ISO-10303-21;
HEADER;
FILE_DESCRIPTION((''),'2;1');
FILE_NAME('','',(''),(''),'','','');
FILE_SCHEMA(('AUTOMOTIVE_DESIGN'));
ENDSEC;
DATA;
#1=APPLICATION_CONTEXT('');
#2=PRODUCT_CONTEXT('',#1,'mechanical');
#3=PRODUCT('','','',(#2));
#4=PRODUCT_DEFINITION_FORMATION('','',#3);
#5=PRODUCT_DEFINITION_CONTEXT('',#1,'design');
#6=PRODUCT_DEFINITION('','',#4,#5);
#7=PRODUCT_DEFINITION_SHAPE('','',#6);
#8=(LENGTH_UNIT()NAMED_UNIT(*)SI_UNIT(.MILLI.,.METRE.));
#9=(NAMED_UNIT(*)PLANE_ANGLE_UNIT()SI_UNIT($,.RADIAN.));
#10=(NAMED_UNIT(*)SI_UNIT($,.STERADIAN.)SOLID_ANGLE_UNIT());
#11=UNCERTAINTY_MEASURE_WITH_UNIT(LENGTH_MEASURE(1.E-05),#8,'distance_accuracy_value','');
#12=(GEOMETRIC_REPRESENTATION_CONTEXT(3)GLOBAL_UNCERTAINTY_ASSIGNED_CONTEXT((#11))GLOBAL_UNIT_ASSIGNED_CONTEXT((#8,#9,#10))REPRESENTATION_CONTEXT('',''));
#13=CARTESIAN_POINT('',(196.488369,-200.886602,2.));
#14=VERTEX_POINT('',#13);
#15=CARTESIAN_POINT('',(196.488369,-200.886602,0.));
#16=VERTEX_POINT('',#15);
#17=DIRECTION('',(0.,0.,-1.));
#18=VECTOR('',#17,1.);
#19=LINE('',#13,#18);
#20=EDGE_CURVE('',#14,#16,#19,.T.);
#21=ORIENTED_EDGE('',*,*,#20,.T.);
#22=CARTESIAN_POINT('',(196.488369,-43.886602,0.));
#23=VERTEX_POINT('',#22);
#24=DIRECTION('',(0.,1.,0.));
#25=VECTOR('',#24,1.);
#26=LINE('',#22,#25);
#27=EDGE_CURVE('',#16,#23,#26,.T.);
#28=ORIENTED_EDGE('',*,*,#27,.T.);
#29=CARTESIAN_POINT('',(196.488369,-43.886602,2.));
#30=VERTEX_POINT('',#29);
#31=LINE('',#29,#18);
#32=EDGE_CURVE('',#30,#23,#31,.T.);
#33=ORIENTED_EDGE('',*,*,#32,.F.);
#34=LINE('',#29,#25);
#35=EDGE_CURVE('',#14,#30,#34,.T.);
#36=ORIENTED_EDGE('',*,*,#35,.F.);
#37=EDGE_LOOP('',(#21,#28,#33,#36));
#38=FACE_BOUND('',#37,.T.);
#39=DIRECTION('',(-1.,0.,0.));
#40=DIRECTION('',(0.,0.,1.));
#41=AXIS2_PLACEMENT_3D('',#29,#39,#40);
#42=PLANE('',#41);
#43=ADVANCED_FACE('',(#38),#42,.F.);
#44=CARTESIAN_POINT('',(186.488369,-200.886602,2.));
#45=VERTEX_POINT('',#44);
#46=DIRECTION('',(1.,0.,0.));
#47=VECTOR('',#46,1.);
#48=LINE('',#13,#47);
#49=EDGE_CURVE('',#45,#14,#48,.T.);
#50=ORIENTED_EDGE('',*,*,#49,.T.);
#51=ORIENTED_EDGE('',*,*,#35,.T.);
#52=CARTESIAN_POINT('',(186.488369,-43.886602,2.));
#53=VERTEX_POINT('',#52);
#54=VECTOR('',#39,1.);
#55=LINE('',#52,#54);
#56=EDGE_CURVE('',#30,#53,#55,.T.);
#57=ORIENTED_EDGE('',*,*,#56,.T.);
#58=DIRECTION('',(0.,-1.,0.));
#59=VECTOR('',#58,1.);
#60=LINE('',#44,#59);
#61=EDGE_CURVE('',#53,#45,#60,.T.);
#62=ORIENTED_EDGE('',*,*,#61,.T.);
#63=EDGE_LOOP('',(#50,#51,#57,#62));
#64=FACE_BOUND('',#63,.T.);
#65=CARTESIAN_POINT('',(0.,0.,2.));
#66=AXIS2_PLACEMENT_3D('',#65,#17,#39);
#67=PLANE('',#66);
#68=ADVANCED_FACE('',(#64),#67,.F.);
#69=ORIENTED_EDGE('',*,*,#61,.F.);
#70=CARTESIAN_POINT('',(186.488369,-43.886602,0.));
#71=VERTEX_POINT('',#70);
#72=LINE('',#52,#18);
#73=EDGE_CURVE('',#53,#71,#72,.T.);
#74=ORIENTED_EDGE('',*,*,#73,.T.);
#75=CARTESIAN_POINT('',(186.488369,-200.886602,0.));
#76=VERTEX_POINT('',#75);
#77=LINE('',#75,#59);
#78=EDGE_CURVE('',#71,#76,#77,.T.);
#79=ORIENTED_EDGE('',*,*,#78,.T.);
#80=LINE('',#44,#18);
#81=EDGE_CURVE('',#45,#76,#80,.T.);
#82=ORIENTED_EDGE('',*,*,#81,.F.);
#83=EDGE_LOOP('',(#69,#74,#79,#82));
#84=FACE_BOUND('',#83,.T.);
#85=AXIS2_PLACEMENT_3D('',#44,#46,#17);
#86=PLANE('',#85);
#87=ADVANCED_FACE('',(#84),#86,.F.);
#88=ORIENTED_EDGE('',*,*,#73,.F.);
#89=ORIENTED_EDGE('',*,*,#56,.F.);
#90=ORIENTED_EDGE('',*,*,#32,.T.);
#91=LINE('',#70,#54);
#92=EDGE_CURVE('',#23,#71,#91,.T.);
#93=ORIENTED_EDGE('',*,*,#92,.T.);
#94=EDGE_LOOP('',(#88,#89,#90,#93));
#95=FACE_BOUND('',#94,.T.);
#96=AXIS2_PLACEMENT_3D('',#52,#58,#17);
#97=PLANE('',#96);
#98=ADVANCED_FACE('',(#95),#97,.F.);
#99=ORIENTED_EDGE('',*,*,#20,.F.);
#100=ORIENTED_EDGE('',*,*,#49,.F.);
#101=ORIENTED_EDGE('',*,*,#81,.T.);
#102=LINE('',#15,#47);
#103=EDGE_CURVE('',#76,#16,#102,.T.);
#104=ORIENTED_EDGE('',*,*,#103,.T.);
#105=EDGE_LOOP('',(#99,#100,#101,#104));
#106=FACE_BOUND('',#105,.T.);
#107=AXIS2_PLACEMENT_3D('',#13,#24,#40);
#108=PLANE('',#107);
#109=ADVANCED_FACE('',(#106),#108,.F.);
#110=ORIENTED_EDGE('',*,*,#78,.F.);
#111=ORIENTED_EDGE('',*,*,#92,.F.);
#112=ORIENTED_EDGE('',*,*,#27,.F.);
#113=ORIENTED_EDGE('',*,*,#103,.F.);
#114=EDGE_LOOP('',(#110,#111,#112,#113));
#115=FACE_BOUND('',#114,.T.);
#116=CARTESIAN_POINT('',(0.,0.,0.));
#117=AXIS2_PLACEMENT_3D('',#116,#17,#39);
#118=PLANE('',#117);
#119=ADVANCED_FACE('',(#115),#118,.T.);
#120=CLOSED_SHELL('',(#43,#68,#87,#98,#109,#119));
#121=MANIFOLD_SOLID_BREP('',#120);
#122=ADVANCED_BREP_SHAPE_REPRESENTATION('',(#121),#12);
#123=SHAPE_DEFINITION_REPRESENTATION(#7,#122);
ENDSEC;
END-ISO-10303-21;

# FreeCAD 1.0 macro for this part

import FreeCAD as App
import Part
import Sketcher
from FreeCAD import Vector
Q = App.Units.Quantity


def add_polygon(sketch, points):
    """Adds a closed chain of lines whose ends are joined by coincident constraints."""
    first, n = sketch.GeometryCount, len(points)
    for a, b in zip(points, points[1:] + points[:1]):
        sketch.addGeometry(Part.LineSegment(App.Vector(*a, 0), App.Vector(*b, 0)), False)
    for i in range(n):
        sketch.addConstraint(Sketcher.Constraint("Coincident", first + i, 2, first + (i + 1) % n, 1))

doc = App.newDocument("Part")
body = doc.addObject("PartDesign::Body", "Body")

sketch1 = body.newObject("Sketcher::SketchObject", "Sketch")
sketch1.AttachmentSupport = (doc.getObject("XY_Plane"), [""])
sketch1.MapMode = "FlatFace"
add_polygon(sketch1, [(186, -44), (186, -201), (196, -201), (196, -44)])
sketch1.addConstraint([
    Sketcher.Constraint("Vertical", 0),
    Sketcher.Constraint("Horizontal", 1),
    Sketcher.Constraint("Vertical", 2),
    Sketcher.Constraint("Horizontal", 3),
    Sketcher.Constraint("DistanceX", 1, 1, 1, 2, Q("10 mm")),
    Sketcher.Constraint("DistanceY", 0, 2, 0, 1, Q("157 mm")),
    Sketcher.Constraint("DistanceX", -1, 1, 0, 2, Q("186.488369 mm")),
    Sketcher.Constraint("DistanceY", 0, 2, -1, 1, Q("200.886602 mm")),
])
pad1 = body.newObject("PartDesign::Pad", "Pad")
pad1.Profile = sketch1
pad1.Length = 2

doc.recompute()
